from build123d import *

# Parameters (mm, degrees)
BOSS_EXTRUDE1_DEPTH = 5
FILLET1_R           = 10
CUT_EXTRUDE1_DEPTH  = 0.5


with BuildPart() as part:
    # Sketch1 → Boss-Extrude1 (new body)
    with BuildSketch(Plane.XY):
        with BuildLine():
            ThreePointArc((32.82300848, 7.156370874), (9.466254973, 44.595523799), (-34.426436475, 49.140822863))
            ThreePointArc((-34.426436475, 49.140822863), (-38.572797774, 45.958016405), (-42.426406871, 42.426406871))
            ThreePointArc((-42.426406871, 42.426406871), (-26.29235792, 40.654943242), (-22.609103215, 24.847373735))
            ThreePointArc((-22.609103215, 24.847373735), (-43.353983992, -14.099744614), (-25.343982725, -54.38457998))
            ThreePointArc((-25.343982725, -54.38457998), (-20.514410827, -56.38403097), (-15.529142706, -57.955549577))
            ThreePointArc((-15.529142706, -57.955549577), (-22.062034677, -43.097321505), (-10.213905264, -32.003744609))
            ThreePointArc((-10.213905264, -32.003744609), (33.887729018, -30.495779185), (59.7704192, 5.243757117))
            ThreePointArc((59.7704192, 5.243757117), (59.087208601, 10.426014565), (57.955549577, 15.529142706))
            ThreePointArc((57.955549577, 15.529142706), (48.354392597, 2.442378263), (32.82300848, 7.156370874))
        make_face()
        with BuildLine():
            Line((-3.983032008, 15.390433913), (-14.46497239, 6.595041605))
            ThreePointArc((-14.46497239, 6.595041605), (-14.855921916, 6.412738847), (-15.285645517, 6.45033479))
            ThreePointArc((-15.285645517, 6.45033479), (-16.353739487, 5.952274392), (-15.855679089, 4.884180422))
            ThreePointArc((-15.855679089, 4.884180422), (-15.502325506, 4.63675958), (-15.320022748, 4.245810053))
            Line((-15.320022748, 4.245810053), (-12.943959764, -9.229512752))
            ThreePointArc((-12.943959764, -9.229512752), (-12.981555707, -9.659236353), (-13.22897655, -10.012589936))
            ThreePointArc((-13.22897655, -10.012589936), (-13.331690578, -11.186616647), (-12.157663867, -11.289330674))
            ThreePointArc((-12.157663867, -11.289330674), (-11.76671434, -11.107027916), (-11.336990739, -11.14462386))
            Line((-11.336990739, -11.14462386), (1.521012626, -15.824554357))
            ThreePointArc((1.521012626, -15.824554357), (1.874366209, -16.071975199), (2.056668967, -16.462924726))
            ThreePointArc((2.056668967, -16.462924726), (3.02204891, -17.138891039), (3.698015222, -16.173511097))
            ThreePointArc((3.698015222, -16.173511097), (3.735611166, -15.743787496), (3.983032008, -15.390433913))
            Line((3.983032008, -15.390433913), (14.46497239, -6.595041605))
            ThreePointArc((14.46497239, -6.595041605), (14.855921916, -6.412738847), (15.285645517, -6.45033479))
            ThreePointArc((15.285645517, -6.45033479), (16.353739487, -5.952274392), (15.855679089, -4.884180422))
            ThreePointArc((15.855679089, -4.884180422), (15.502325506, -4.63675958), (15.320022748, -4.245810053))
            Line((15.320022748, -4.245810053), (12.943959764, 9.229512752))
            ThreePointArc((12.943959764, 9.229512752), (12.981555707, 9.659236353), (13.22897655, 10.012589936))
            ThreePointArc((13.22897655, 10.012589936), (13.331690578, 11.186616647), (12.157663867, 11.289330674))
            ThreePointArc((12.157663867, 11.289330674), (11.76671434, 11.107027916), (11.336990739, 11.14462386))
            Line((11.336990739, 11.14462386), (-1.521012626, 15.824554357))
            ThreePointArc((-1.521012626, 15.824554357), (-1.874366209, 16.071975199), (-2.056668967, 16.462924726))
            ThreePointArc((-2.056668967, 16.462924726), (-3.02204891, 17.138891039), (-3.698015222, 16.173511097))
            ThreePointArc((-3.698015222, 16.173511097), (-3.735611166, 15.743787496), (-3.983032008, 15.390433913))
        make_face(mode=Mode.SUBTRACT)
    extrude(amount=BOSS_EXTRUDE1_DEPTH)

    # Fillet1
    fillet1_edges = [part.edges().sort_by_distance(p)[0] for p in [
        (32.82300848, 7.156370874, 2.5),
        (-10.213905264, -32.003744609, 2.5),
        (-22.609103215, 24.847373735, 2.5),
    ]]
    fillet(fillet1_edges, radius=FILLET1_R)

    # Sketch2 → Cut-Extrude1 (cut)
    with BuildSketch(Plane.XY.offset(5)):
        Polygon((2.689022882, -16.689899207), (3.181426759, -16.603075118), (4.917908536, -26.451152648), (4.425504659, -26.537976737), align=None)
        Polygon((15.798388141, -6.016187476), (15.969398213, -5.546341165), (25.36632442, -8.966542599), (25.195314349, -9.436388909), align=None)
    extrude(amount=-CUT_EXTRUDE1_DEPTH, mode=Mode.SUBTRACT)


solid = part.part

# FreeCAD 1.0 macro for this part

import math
import FreeCAD as App
import Part
import Sketcher

V = App.Vector
Q = App.Units.Quantity


def edges_at(feature, points):
    """Names of the edges that pass closest to the given points."""
    edges = feature.Shape.Edges
    near = lambda p: min(range(len(edges)), key=lambda i: edges[i].distToShape(Part.Vertex(*p))[0])
    return sorted({f"Edge{near(p) + 1}" for p in points})


def add_polygon(sketch, points):
    """Adds a closed chain of lines whose ends are joined by coincident constraints."""
    first, n = sketch.GeometryCount, len(points)
    for a, b in zip(points, points[1:] + points[:1]):
        sketch.addGeometry(Part.LineSegment(App.Vector(*a, 0), App.Vector(*b, 0)), False)
    for i in range(n):
        sketch.addConstraint(Sketcher.Constraint("Coincident", first + i, 2, first + (i + 1) % n, 1))

doc = App.newDocument("Part")
body = doc.addObject("PartDesign::Body", "Body")

# Sketch on XY plane
sketch1 = body.newObject("Sketcher::SketchObject", "Sketch")
sketch1.AttachmentSupport = (doc.getObject("XY_Plane"), [""])
sketch1.MapMode = "FlatFace"
sketch1.addGeometry([
    Part.ArcOfCircle(Part.Circle(V(-17.1, 2, 0), V(0, 0, 1), 50.2), math.radians(6), math.radians(110)),  # 0
    Part.ArcOfCircle(Part.Circle(V(0, 0, 0), V(0, 0, 1), 60), math.radians(125.01), math.radians(135)),  # 1
    Part.ArcOfCircle(Part.Circle(V(-35.6, 30.2, 0), V(0, 0, 1), 14), math.radians(-22), math.radians(119)),  # 2
    Part.ArcOfCircle(Part.Circle(V(6.8, -15.8, 0), V(0, 0, 1), 50.2), math.radians(126), math.radians(230)),  # 3
    Part.ArcOfCircle(Part.Circle(V(0, 0, 0), V(0, 0, 1), 60), math.radians(-114.99), math.radians(-105)),  # 4
    Part.ArcOfCircle(Part.Circle(V(-8.3, -45.9, 0), V(0, 0, 1), 14), math.radians(98), math.radians(239)),  # 5
    Part.ArcOfCircle(Part.Circle(V(10.3, 13.8, 0), V(0, 0, 1), 50.2), math.radians(-114), math.radians(-10)),  # 6
    Part.ArcOfCircle(Part.Circle(V(0, 0, 0), V(0, 0, 1), 60), math.radians(5.01), math.radians(15)),  # 7
    Part.ArcOfCircle(Part.Circle(V(43.9, 15.8, 0), V(0, 0, 1), 14), math.radians(-142), math.radians(-1)),  # 8
    Part.LineSegment(V(-14.5, 6.6, 0), V(-4, 15.4, 0)),  # 9
    Part.ArcOfCircle(Part.Circle(V(-4.5, 16, 0), V(0, 0, 1), 0.8), math.radians(-50), math.radians(10)),  # 10
    Part.ArcOfCircle(Part.Circle(V(-2.9, 16.3, 0), V(0, 0, 1), 0.8), math.radians(10), math.radians(190)),  # 11
    Part.ArcOfCircle(Part.Circle(V(-1.2, 16.6, 0), V(0, 0, 1), 0.8), math.radians(-170), math.radians(-110)),  # 12
    Part.LineSegment(V(-1.5, 15.8, 0), V(11.3, 11.1, 0)),  # 13
    Part.ArcOfCircle(Part.Circle(V(11.6, 11.9, 0), V(0, 0, 1), 0.8), math.radians(-110), math.radians(-50)),  # 14
    Part.ArcOfCircle(Part.Circle(V(12.7, 10.7, 0), V(0, 0, 1), 0.8), math.radians(-50), math.radians(130)),  # 15
    Part.ArcOfCircle(Part.Circle(V(13.8, 9.4, 0), V(0, 0, 1), 0.8), math.radians(130), math.radians(190)),  # 16
    Part.LineSegment(V(12.9, 9.2, 0), V(15.3, -4.2, 0)),  # 17
    Part.ArcOfCircle(Part.Circle(V(16.1, -4.1, 0), V(0, 0, 1), 0.8), math.radians(-170), math.radians(-110)),  # 18
    Part.ArcOfCircle(Part.Circle(V(15.6, -5.7, 0), V(0, 0, 1), 0.8), math.radians(-110), math.radians(70)),  # 19
    Part.ArcOfCircle(Part.Circle(V(15, -7.2, 0), V(0, 0, 1), 0.8), math.radians(70), math.radians(130)),  # 20
    Part.LineSegment(V(14.5, -6.6, 0), V(4, -15.4, 0)),  # 21
    Part.ArcOfCircle(Part.Circle(V(4.5, -16, 0), V(0, 0, 1), 0.8), math.radians(130), math.radians(190)),  # 22
    Part.ArcOfCircle(Part.Circle(V(2.9, -16.3, 0), V(0, 0, 1), 0.8), math.radians(-170), math.radians(10)),  # 23
    Part.ArcOfCircle(Part.Circle(V(1.2, -16.6, 0), V(0, 0, 1), 0.8), math.radians(10), math.radians(70)),  # 24
    Part.LineSegment(V(1.5, -15.8, 0), V(-11.3, -11.1, 0)),  # 25
    Part.ArcOfCircle(Part.Circle(V(-11.6, -11.9, 0), V(0, 0, 1), 0.8), math.radians(70), math.radians(130)),  # 26
    Part.ArcOfCircle(Part.Circle(V(-12.7, -10.7, 0), V(0, 0, 1), 0.8), math.radians(130), math.radians(310)),  # 27
    Part.ArcOfCircle(Part.Circle(V(-13.8, -9.4, 0), V(0, 0, 1), 0.8), math.radians(-50), math.radians(10)),  # 28
    Part.LineSegment(V(-12.9, -9.2, 0), V(-15.3, 4.2, 0)),  # 29
    Part.ArcOfCircle(Part.Circle(V(-16.1, 4.1, 0), V(0, 0, 1), 0.8), math.radians(10), math.radians(70)),  # 30
    Part.ArcOfCircle(Part.Circle(V(-15.6, 5.7, 0), V(0, 0, 1), 0.8), math.radians(70), math.radians(250)),  # 31
    Part.ArcOfCircle(Part.Circle(V(-15, 7.2, 0), V(0, 0, 1), 0.8), math.radians(-110), math.radians(-50)),  # 32
], False)
sketch1.addConstraint([
    Sketcher.Constraint("Coincident", 0, 2, 1, 1),
    Sketcher.Constraint("Coincident", 1, 2, 2, 2),
    Sketcher.Constraint("Coincident", 2, 1, 3, 1),
    Sketcher.Constraint("Coincident", 3, 2, 4, 1),
    Sketcher.Constraint("Coincident", 4, 2, 5, 2),
    Sketcher.Constraint("Coincident", 5, 1, 6, 1),
    Sketcher.Constraint("Coincident", 6, 2, 7, 1),
    Sketcher.Constraint("Coincident", 7, 2, 8, 2),
    Sketcher.Constraint("Coincident", 8, 1, 0, 1),
    Sketcher.Constraint("Tangent", 9, 2, 10, 1),
    Sketcher.Constraint("Tangent", 10, 2, 11, 2),
    Sketcher.Constraint("Tangent", 11, 1, 12, 1),
    Sketcher.Constraint("Tangent", 12, 2, 13, 1),
    Sketcher.Constraint("Tangent", 13, 2, 14, 1),
    Sketcher.Constraint("Tangent", 14, 2, 15, 2),
    Sketcher.Constraint("Tangent", 15, 1, 16, 1),
    Sketcher.Constraint("Tangent", 16, 2, 17, 1),
    Sketcher.Constraint("Tangent", 17, 2, 18, 1),
    Sketcher.Constraint("Tangent", 18, 2, 19, 2),
    Sketcher.Constraint("Tangent", 19, 1, 20, 1),
    Sketcher.Constraint("Tangent", 20, 2, 21, 1),
    Sketcher.Constraint("Tangent", 21, 2, 22, 1),
    Sketcher.Constraint("Tangent", 22, 2, 23, 2),
    Sketcher.Constraint("Tangent", 23, 1, 24, 1),
    Sketcher.Constraint("Tangent", 24, 2, 25, 1),
    Sketcher.Constraint("Tangent", 25, 2, 26, 1),
    Sketcher.Constraint("Tangent", 26, 2, 27, 2),
    Sketcher.Constraint("Tangent", 27, 1, 28, 1),
    Sketcher.Constraint("Tangent", 28, 2, 29, 1),
    Sketcher.Constraint("Tangent", 29, 2, 30, 1),
    Sketcher.Constraint("Tangent", 30, 2, 31, 2),
    Sketcher.Constraint("Tangent", 31, 1, 32, 1),
    Sketcher.Constraint("Tangent", 32, 2, 9, 1),
    Sketcher.Constraint("Coincident", 1, 3, -1, 1),
    Sketcher.Constraint("Coincident", 4, 3, -1, 1),
    Sketcher.Constraint("Coincident", 7, 3, -1, 1),
    Sketcher.Constraint("Equal", 0, 3),
    Sketcher.Constraint("Equal", 1, 4),
    Sketcher.Constraint("Equal", 2, 5),
    Sketcher.Constraint("Equal", 3, 6),
    Sketcher.Constraint("Equal", 4, 7),
    Sketcher.Constraint("Equal", 5, 8),
    Sketcher.Constraint("Equal", 10, 11),
    Sketcher.Constraint("Equal", 11, 12),
    Sketcher.Constraint("Equal", 12, 14),
    Sketcher.Constraint("Equal", 14, 15),
    Sketcher.Constraint("Equal", 15, 16),
    Sketcher.Constraint("Equal", 16, 18),
    Sketcher.Constraint("Equal", 18, 19),
    Sketcher.Constraint("Equal", 19, 20),
    Sketcher.Constraint("Equal", 20, 22),
    Sketcher.Constraint("Equal", 22, 23),
    Sketcher.Constraint("Equal", 23, 24),
    Sketcher.Constraint("Equal", 24, 26),
    Sketcher.Constraint("Equal", 26, 27),
    Sketcher.Constraint("Equal", 27, 28),
    Sketcher.Constraint("Equal", 28, 30),
    Sketcher.Constraint("Equal", 30, 31),
    Sketcher.Constraint("Equal", 31, 32),
    Sketcher.Constraint("Symmetric", 10, 3, 22, 3, -1, 1),
    Sketcher.Constraint("Symmetric", 14, 3, 26, 3, -1, 1),
    Sketcher.Constraint("Symmetric", 18, 3, 30, 3, -1, 1),
    Sketcher.Constraint("Parallel", 9, 21),
    Sketcher.Constraint("Parallel", 13, 25),
    Sketcher.Constraint("Parallel", 17, 29),
    Sketcher.Constraint("Equal", 9, 13),
    Sketcher.Constraint("Equal", 13, 17),
    Sketcher.Constraint("Radius", 1, 60.0),
    Sketcher.Constraint("Angle", 9, Q("40 deg")),
    Sketcher.Constraint("Angle", 13, Q("-20 deg")),
    Sketcher.Constraint("Angle", 17, Q("-80 deg")),
    Sketcher.Constraint("Radius", 2, 14.04101),
    Sketcher.Constraint("DistanceY", -1, 1, 2, 3, 30.151001),
    Sketcher.Constraint("Radius", 0, 50.214812),
    Sketcher.Constraint("Radius", 10, 0.833333),
    Sketcher.Constraint("Distance", 9, 13.683201),
    Sketcher.Constraint("DistanceY", -1, 1, 14, 3, 11.927701),
    Sketcher.Constraint("DistanceX", 3, 3, 6, 3, 3.4645),
    Sketcher.Constraint("DistanceY", 3, 3, 8, 3, 31.5956),
    Sketcher.Constraint("DistanceY", 22, 3, 18, 3, 11.927701),
    Sketcher.Constraint("DistanceX", 23, 3, 3, 3, 3.953599),
    Sketcher.Constraint("DistanceX", 5, 1, 24, 3, 11.449901),
    Sketcher.Constraint("DistanceX", 0, 3, -1, 1, 17.126382),
    Sketcher.Constraint("DistanceY", -1, 1, 0, 3, 2.00023),
    Sketcher.Constraint("DistanceX", 2, 3, -1, 1, 35.60993),
    Sketcher.Constraint("DistanceX", -1, 1, 3, 3, 6.830941),
    Sketcher.Constraint("DistanceX", 10, 3, -1, 1, 4.518688),
    Sketcher.Constraint("DistanceX", -1, 1, 15, 3, 12.69332),
    Sketcher.Constraint("DistanceX", 27, 3, -1, 1, 12.69332),
    Sketcher.Constraint("DistanceY", 3, 2, -1, 1, 54.38458),
    Sketcher.Constraint("DistanceY", 4, 2, -1, 1, 57.95555),
    Sketcher.Constraint("DistanceX", -1, 1, 6, 2, 59.770419),
    Sketcher.Constraint("DistanceX", -1, 1, 7, 2, 57.95555),
    Sketcher.Constraint("DistanceY", -1, 1, 10, 2, 16.173511),
    Sketcher.Constraint("DistanceX", -1, 1, 18, 2, 15.855679),
    Sketcher.Constraint("DistanceX", 30, 2, -1, 1, 15.855679),
])
pad1 = body.newObject("PartDesign::Pad", "Pad")
pad1.Profile = sketch1
pad1.Length = 5
doc.recompute()

fillet = body.newObject("PartDesign::Fillet", "Fillet")
fillet.Base = (pad1, edges_at(pad1, [(32.823, 7.156, 2.5), (-10.214, -32.004, 2.5), (-22.609, 24.847, 2.5)]))
fillet.Radius = 10

# Sketch on XY plane
sketch2 = body.newObject("Sketcher::SketchObject", "Sketch001")
sketch2.AttachmentSupport = (doc.getObject("XY_Plane"), [""])
sketch2.MapMode = "FlatFace"
sketch2.AttachmentOffset = App.Placement(V(0, 0, 5), App.Rotation())
add_polygon(sketch2, [(3.18, -16.6), (2.69, -16.69), (4.43, -26.54), (4.92, -26.45)])  # lines 0-3
add_polygon(sketch2, [(15.97, -5.55), (15.8, -6.02), (25.2, -9.44), (25.37, -8.97)])  # lines 4-7
sketch2.addConstraint([
    Sketcher.Constraint("Perpendicular", 0, 1),
    Sketcher.Constraint("Perpendicular", 1, 2),
    Sketcher.Constraint("Perpendicular", 2, 3),
    Sketcher.Constraint("Perpendicular", 4, 5),
    Sketcher.Constraint("Perpendicular", 5, 6),
    Sketcher.Constraint("Perpendicular", 6, 7),
    Sketcher.Constraint("Equal", 2, 4),
    Sketcher.Constraint("Equal", 3, 5),
    Sketcher.Constraint("Angle", 0, Q("-170 deg")),
    Sketcher.Constraint("Angle", 4, Q("-110 deg")),
    Sketcher.Constraint("Distance", 1, 10.0),
    Sketcher.Constraint("Distance", 0, 0.5),
    Sketcher.Constraint("DistanceY", 0, 2, -1, 1, 16.689899),
    Sketcher.Constraint("DistanceX", -1, 1, 7, 2, 15.969398),
    Sketcher.Constraint("DistanceX", 0, 2, 6, 2, 22.677302),
    Sketcher.Constraint("DistanceY", 5, 2, -1, 1, 9.436389),
])
pocket1 = body.newObject("PartDesign::Pocket", "Pocket")
pocket1.Profile = sketch2
pocket1.Length = 0.5

doc.recompute()
